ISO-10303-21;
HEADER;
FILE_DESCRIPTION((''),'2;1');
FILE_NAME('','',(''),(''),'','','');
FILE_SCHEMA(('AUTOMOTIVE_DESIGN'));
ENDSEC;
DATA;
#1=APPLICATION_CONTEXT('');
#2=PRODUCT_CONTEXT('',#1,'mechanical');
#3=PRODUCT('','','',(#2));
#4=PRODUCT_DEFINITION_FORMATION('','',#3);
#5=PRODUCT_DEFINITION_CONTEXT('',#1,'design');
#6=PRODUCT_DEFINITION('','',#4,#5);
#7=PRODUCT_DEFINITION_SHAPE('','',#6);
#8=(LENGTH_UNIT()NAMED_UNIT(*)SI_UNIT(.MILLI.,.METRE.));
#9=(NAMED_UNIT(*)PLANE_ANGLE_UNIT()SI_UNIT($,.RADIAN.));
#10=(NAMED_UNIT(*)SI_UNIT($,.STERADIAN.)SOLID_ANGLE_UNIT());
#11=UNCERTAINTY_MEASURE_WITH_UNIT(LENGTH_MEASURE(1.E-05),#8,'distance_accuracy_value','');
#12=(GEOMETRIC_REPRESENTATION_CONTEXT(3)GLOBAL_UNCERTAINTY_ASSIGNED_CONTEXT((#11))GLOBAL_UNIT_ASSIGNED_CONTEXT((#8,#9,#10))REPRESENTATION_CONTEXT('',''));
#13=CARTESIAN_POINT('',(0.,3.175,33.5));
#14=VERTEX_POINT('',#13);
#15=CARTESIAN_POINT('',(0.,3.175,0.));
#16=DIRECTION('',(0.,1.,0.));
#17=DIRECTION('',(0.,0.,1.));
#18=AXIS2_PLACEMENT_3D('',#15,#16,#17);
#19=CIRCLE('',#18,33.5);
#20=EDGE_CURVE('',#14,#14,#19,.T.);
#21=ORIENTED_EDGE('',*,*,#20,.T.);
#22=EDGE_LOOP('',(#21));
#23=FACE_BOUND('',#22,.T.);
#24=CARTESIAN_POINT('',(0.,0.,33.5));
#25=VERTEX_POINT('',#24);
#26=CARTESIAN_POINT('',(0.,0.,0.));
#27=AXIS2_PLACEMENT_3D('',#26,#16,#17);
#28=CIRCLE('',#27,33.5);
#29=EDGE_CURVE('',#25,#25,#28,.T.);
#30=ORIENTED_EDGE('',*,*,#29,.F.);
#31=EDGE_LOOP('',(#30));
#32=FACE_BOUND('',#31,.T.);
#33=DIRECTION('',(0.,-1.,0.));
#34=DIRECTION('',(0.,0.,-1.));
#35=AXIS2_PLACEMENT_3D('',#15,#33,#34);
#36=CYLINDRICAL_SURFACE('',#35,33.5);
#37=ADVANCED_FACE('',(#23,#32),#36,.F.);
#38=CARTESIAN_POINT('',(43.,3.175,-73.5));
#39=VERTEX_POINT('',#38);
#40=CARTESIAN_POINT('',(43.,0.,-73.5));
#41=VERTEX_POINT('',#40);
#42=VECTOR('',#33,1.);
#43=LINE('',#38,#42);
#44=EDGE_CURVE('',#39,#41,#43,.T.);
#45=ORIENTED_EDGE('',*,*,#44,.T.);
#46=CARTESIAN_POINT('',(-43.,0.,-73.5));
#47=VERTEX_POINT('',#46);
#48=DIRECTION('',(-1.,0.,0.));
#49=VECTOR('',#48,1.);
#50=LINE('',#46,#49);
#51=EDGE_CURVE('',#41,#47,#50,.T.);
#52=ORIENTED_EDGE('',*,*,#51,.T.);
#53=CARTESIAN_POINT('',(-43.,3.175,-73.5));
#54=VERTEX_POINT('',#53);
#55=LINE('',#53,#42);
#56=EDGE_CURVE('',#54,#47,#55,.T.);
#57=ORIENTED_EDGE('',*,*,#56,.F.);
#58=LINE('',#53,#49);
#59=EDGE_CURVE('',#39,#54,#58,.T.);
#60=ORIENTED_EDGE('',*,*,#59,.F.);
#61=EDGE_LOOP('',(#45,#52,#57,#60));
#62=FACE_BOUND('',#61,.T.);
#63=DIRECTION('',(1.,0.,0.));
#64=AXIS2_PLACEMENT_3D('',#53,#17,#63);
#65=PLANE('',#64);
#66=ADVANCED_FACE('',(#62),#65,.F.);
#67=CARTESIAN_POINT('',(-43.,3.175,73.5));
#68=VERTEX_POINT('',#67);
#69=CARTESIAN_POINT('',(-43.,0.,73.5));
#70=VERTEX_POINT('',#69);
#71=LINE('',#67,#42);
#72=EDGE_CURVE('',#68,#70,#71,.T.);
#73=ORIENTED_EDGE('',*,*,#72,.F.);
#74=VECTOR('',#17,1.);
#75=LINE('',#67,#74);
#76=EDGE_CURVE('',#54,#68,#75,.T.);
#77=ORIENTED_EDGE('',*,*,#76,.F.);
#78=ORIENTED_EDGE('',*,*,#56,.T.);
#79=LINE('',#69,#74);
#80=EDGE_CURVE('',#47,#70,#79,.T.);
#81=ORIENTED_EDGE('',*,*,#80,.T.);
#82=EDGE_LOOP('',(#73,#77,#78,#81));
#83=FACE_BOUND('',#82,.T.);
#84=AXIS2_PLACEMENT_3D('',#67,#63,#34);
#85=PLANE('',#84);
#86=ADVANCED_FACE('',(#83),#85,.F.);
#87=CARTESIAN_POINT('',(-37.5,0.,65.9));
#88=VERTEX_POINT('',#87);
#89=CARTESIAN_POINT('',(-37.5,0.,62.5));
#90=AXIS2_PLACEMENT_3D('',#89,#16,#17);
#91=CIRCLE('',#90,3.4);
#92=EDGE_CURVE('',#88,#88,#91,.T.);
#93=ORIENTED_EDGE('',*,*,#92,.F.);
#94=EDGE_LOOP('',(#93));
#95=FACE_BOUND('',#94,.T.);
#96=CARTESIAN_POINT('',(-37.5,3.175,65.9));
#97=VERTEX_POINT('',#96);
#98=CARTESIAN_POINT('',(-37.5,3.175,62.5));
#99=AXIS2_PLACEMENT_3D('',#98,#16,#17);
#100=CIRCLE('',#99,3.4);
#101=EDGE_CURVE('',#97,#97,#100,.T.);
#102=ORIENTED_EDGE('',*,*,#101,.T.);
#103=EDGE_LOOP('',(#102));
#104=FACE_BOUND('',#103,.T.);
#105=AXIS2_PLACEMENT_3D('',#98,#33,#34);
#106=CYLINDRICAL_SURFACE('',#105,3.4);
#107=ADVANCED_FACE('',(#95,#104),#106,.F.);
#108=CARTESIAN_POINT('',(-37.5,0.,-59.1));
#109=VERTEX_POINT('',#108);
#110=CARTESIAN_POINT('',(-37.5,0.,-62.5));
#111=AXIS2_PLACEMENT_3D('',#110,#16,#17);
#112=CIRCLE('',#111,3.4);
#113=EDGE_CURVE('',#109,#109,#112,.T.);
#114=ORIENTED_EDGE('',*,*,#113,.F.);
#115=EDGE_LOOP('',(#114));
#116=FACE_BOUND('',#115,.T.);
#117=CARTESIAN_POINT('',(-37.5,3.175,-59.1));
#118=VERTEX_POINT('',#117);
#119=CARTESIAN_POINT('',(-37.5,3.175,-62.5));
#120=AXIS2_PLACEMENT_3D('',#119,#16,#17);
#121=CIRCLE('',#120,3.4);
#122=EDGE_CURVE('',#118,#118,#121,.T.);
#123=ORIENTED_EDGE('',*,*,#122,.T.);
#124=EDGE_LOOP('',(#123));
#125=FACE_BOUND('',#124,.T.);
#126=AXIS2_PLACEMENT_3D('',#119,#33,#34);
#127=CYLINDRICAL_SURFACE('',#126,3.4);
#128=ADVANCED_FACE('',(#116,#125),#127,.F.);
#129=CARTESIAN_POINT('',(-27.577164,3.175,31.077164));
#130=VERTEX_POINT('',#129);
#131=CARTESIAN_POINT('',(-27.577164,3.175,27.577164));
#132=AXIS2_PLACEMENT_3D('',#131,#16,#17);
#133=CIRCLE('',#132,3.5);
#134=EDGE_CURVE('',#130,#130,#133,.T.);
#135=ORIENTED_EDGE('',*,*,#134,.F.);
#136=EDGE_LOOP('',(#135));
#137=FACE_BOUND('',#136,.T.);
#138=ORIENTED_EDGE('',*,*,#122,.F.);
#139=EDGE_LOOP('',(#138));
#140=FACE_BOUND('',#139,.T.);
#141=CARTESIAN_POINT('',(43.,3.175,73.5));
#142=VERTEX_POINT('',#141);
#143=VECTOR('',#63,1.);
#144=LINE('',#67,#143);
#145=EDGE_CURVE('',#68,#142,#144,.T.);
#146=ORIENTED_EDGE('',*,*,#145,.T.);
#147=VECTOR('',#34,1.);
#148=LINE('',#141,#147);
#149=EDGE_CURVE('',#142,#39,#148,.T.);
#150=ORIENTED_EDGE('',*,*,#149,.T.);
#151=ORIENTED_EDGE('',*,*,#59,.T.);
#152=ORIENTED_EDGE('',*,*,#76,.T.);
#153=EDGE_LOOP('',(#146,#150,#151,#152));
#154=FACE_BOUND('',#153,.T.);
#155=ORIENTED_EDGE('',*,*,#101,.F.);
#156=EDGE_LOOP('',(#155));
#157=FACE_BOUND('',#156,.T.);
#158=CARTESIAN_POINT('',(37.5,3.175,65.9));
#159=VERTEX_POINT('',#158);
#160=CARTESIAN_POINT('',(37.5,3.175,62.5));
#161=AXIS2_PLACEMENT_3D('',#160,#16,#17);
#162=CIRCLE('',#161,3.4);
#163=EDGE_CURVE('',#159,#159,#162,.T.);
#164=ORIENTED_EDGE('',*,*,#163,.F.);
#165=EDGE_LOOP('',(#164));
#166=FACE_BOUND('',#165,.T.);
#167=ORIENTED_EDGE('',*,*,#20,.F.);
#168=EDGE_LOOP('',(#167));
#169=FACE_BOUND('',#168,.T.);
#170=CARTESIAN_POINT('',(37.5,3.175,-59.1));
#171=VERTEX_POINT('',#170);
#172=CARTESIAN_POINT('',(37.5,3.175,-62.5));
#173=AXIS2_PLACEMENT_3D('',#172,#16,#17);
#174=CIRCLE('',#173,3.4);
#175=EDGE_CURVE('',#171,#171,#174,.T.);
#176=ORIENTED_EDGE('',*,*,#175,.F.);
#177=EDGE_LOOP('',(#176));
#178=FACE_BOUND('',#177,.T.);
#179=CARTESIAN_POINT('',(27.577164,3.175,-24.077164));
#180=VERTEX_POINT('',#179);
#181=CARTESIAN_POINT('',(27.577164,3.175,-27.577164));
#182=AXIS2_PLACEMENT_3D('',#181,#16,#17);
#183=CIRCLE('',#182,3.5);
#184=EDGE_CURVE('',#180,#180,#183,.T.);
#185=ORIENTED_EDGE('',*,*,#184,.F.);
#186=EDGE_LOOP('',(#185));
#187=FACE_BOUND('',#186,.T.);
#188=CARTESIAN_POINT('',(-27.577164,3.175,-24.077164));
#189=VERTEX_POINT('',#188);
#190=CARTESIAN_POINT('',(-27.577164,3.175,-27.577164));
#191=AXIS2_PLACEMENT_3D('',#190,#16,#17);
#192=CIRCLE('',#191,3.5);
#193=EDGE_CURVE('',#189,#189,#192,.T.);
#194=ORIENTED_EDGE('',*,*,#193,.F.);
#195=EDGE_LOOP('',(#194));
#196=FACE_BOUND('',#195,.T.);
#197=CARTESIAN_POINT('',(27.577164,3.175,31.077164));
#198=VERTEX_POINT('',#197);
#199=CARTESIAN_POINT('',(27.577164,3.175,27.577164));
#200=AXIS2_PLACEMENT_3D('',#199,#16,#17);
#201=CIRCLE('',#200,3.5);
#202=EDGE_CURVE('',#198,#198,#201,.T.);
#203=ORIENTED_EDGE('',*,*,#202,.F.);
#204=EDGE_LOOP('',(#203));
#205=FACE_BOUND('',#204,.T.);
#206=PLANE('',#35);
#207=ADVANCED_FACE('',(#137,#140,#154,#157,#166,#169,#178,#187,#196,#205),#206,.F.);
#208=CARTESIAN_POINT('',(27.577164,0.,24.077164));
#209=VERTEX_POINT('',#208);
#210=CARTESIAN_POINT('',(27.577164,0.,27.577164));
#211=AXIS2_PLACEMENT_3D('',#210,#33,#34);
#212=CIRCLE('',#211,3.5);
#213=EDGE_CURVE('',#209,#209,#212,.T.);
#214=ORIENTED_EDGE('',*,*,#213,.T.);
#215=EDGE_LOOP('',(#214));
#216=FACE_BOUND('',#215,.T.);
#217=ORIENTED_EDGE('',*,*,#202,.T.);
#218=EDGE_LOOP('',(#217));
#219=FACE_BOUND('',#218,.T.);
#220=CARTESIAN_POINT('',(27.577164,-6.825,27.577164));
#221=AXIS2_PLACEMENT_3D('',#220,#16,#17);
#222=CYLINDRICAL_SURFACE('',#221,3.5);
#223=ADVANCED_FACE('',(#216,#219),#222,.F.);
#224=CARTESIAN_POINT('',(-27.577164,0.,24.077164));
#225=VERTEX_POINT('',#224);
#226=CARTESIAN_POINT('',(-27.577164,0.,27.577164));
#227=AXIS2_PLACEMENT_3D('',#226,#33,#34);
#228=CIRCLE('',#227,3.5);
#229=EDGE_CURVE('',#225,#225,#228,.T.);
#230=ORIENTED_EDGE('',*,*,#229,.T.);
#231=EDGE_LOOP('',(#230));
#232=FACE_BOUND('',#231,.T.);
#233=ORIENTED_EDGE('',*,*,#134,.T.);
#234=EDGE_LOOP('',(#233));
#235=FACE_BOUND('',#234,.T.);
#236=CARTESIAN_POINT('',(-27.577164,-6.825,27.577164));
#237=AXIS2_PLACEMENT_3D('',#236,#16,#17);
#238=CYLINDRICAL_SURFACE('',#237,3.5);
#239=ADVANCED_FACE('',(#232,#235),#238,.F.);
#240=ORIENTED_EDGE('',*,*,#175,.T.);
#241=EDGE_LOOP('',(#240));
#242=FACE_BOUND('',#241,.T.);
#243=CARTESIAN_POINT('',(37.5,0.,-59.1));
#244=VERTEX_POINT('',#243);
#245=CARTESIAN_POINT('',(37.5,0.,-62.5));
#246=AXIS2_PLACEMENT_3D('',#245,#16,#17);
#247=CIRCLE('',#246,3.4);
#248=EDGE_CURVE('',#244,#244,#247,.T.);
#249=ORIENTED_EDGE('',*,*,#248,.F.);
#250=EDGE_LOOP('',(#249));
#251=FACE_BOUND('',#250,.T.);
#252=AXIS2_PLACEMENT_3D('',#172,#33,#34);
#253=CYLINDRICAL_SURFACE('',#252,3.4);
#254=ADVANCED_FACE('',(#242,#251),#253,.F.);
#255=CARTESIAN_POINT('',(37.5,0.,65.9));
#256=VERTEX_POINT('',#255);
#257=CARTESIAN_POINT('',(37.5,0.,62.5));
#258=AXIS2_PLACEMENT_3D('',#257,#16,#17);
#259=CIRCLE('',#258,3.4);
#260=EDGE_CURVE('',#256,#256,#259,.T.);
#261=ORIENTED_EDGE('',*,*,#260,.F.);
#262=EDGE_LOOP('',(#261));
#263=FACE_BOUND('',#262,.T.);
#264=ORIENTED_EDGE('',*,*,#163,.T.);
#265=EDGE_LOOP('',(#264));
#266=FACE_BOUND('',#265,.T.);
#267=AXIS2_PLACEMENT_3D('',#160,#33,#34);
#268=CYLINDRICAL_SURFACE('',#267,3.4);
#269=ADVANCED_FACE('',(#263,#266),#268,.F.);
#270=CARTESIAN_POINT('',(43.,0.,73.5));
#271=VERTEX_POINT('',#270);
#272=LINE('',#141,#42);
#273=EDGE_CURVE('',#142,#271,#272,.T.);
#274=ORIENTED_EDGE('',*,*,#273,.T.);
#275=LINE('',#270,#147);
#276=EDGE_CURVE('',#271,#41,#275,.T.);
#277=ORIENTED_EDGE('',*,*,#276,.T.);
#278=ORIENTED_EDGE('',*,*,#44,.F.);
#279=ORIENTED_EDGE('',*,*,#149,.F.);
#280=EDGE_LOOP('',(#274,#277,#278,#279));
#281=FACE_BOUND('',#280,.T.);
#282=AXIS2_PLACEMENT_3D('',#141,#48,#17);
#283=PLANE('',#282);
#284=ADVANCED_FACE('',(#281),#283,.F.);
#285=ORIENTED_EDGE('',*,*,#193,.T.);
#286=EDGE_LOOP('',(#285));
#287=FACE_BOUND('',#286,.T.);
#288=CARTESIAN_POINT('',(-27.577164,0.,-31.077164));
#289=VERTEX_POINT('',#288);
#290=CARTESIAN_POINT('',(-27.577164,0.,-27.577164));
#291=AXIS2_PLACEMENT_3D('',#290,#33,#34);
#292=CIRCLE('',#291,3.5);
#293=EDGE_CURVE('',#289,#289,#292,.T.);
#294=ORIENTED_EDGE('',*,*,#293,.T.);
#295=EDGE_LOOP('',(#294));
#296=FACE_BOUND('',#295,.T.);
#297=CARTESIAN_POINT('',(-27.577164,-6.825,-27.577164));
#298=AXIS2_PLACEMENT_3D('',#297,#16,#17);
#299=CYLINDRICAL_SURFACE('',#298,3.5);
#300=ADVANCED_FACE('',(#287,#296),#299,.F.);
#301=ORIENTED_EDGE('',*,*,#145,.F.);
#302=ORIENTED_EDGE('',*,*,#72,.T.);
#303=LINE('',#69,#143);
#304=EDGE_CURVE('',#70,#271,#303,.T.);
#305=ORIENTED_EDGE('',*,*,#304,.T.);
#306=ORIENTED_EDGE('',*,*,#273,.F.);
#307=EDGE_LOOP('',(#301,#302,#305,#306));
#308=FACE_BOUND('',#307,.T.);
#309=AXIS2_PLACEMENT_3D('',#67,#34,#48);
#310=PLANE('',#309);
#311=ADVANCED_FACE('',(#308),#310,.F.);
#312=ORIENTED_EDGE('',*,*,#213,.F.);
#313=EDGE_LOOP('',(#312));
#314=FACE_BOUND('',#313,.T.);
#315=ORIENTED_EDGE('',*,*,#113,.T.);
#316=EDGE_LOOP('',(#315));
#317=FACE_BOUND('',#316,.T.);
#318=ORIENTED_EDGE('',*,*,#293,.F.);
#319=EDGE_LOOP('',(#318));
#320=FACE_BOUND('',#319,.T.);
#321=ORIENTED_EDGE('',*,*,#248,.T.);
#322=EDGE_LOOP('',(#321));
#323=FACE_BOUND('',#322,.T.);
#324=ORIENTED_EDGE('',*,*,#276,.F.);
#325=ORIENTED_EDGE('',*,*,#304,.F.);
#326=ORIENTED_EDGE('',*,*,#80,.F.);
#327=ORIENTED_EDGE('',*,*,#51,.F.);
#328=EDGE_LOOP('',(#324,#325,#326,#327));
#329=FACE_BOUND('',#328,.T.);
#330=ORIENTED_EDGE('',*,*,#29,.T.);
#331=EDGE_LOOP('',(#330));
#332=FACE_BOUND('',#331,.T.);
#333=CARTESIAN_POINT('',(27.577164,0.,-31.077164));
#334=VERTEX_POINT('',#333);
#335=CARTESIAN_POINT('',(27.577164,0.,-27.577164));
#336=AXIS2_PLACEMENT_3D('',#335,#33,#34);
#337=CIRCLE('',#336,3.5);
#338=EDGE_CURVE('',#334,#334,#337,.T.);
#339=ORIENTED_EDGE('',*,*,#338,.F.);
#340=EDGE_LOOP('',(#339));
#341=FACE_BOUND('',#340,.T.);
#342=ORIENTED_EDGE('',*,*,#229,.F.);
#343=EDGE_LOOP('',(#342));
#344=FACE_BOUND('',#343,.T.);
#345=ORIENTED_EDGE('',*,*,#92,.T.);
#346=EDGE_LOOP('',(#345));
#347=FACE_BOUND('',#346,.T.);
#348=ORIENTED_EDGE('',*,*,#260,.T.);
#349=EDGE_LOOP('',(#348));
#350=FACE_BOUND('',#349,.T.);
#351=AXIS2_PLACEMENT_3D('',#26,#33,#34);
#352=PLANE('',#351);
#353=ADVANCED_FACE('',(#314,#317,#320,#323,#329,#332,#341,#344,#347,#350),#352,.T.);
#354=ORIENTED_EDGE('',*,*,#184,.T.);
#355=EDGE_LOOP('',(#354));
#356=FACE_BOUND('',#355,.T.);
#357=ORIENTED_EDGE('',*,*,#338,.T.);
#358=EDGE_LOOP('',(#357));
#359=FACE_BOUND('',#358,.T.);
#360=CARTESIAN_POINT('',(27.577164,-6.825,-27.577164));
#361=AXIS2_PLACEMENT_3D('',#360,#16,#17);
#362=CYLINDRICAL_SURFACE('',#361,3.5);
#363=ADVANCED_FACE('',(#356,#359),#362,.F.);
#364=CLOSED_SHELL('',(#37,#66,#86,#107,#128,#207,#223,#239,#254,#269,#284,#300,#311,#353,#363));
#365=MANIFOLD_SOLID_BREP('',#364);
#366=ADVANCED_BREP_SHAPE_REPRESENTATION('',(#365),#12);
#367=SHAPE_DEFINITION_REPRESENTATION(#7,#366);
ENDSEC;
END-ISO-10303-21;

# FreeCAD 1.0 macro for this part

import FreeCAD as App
import Part
import Sketcher
from FreeCAD import Vector


def add_polygon(sketch, points):
    """Adds a closed chain of lines whose ends are joined by coincident constraints."""
    first, n = sketch.GeometryCount, len(points)
    for a, b in zip(points, points[1:] + points[:1]):
        sketch.addGeometry(Part.LineSegment(App.Vector(*a, 0), App.Vector(*b, 0)), False)
    for i in range(n):
        sketch.addConstraint(Sketcher.Constraint("Coincident", first + i, 2, first + (i + 1) % n, 1))

doc = App.newDocument("Part")
body = doc.addObject("PartDesign::Body", "Body")

sketch1 = body.newObject("Sketcher::SketchObject", "Sketch")
sketch1.AttachmentSupport = (doc.getObject("XZ_Plane"), [""])
sketch1.MapMode = "FlatFace"
add_polygon(sketch1, [(-43, -73.5), (-43, 73.5), (43, 73.5), (43, -73.5)])
sketch1.addGeometry(Part.Circle(Vector(-37.5, 62.5, 0), Vector(0, 0, 1), 3.4), False)
sketch1.addGeometry(Part.Circle(Vector(37.5, 62.5, 0), Vector(0, 0, 1), 3.4), False)
sketch1.addGeometry(Part.Circle(Vector(-37.5, -62.5, 0), Vector(0, 0, 1), 3.4), False)
sketch1.addGeometry(Part.Circle(Vector(0, 0, 0), Vector(0, 0, 1), 33.5), False)
sketch1.addGeometry(Part.Circle(Vector(37.5, -62.5, 0), Vector(0, 0, 1), 3.4), False)
sketch1.addConstraint([
    Sketcher.Constraint("Vertical", 0),
    Sketcher.Constraint("Horizontal", 1),
    Sketcher.Constraint("Vertical", 2),
    Sketcher.Constraint("Horizontal", 3),
    Sketcher.Constraint("Coincident", 7, 3, -1, 1),
    Sketcher.Constraint("Equal", 4, 5),
    Sketcher.Constraint("Equal", 5, 6),
    Sketcher.Constraint("Equal", 6, 8),
    Sketcher.Constraint("Symmetric", 5, 3, 6, 3, -1, 1),
    Sketcher.Constraint("Symmetric", 4, 3, 8, 3, -1, 1),
    Sketcher.Constraint("Symmetric", 0, 2, 2, 2, -1, 1),
    Sketcher.Constraint("Symmetric", 4, 3, 5, 3, -2),
    Sketcher.Constraint("Diameter", 7, 67.0),
    Sketcher.Constraint("Diameter", 4, 6.8),
    Sketcher.Constraint("DistanceX", 1, 1, 1, 2, 86.0),
    Sketcher.Constraint("DistanceY", 0, 1, 0, 2, 147.0),
    Sketcher.Constraint("DistanceX", 4, 3, 5, 3, 75.0),
    Sketcher.Constraint("DistanceY", 6, 3, 4, 3, 125.0),
])
pad1 = body.newObject("PartDesign::Pad", "Pad")
pad1.Profile = sketch1
pad1.Length = 3.175
pad1.Reversed = True

sketch2 = body.newObject("Sketcher::SketchObject", "Sketch001")
sketch2.AttachmentSupport = (doc.getObject("XZ_Plane"), [""])
sketch2.MapMode = "FlatFace"
sketch2.AttachmentOffset = App.Placement(Vector(0, 0, -3.175), App.Rotation())
sketch2.addGeometry([
    Part.Circle(Vector(-27.577164, -27.577164, 0), Vector(0, 0, 1), 3.5),
    Part.Circle(Vector(27.577164, -27.577164, 0), Vector(0, 0, 1), 3.5),
    Part.Circle(Vector(27.577164, 27.577164, 0), Vector(0, 0, 1), 3.5),
    Part.Circle(Vector(-27.577164, 27.577164, 0), Vector(0, 0, 1), 3.5),
], False)
sketch2.addConstraint([
    Sketcher.Constraint("Equal", 0, 1),
    Sketcher.Constraint("Equal", 1, 2),
    Sketcher.Constraint("Equal", 2, 3),
    Sketcher.Constraint("Symmetric", 0, 3, 2, 3, -1, 1),
    Sketcher.Constraint("Symmetric", 1, 3, 3, 3, -1, 1),
    Sketcher.Constraint("Symmetric", 0, 3, 1, 3, -2),
    Sketcher.Constraint("Diameter", 0, 7.0),
    Sketcher.Constraint("DistanceX", 0, 3, 1, 3, 55.154329),
    Sketcher.Constraint("DistanceY", 1, 3, 2, 3, 55.154329),
])
pocket1 = body.newObject("PartDesign::Pocket", "Pocket")
pocket1.Profile = sketch2
pocket1.Length = 10
pocket1.Reversed = True

doc.recompute()
